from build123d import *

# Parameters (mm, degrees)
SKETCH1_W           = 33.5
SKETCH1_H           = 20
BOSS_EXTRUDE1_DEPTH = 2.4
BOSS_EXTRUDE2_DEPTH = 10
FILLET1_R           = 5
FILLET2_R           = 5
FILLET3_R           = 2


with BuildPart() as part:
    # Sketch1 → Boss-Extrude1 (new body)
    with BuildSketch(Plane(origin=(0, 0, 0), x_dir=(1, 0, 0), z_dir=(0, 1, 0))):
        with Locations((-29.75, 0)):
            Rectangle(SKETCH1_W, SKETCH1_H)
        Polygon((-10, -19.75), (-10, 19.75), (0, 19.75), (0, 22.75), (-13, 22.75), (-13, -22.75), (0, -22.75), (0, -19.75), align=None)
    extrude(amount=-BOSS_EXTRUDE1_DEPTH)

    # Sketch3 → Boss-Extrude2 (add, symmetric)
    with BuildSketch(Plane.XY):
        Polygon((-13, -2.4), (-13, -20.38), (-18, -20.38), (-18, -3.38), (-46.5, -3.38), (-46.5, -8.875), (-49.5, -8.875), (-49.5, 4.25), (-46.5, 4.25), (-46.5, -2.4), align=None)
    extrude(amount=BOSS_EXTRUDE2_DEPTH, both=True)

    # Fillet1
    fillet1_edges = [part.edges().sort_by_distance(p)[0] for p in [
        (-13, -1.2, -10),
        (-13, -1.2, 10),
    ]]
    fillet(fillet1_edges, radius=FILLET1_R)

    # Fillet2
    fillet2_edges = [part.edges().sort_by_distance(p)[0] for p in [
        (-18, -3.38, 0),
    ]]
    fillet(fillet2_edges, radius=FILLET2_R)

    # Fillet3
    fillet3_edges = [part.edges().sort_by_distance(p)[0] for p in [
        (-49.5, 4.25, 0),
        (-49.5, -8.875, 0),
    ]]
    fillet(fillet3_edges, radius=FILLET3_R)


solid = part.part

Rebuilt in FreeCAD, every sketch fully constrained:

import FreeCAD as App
import Part
import Sketcher

V = App.Vector


def edges_at(feature, points):
    """Names of the edges that pass closest to the given points."""
    edges = feature.Shape.Edges
    near = lambda p: min(range(len(edges)), key=lambda i: edges[i].distToShape(Part.Vertex(*p))[0])
    return sorted({f"Edge{near(p) + 1}" for p in points})

doc = App.newDocument("Part")
params = doc.addObject("Spreadsheet::Sheet", "Params")
for row, (alias, value) in enumerate([
    ("sketch1_width", "13 mm"),
    ("sketch1_width2", "10 mm"),
    ("sketch1_height", "20 mm"),
    ("sketch1_height2", "3 mm"),
    ("sketch1_width3", "33.5 mm"),
    ("pad1_length", "2.4 mm"),
    ("sketch2_width", "3 mm"),
    ("sketch2_width2", "5 mm"),
    ("sketch2_height", "17 mm"),
    ("sketch2_width3", "33.5 mm"),
    ("sketch2_height2", "17.98 mm"),
    ("pad2_length", "20 mm"),
    ("fillet_radius", "5 mm"),
    ("fillet2_radius", "5 mm"),
    ("fillet3_radius", "2 mm"),
], start=1):
    params.set(f"A{row}", alias)
    params.set(f"B{row}", "=" + value)
    params.setAlias(f"B{row}", alias)

body = doc.addObject("PartDesign::Body", "Body")

# Sketch on XZ plane
sketch1 = body.newObject("Sketcher::SketchObject", "Sketch")
sketch1.AttachmentSupport = (doc.getObject("XZ_Plane"), [""])
sketch1.MapMode = "FlatFace"
sketch1.addGeometry(Part.LineSegment(V(-46.5, -10, 0), V(-46.5, 10, 0)), False)
sketch1.addGeometry(Part.LineSegment(V(-46.5, 10, 0), V(-13, 10, 0)), False)
sketch1.addGeometry(Part.LineSegment(V(-13, 10, 0), V(-13, 22.8, 0)), False)
sketch1.addGeometry(Part.LineSegment(V(-13, 22.8, 0), V(0, 22.8, 0)), False)
sketch1.addGeometry(Part.LineSegment(V(0, 22.8, 0), V(0, 19.8, 0)), False)
sketch1.addGeometry(Part.LineSegment(V(0, 19.8, 0), V(-10, 19.8, 0)), False)
sketch1.addGeometry(Part.LineSegment(V(-10, 19.8, 0), V(-10, -19.8, 0)), False)
sketch1.addGeometry(Part.LineSegment(V(-10, -19.8, 0), V(0, -19.8, 0)), False)
sketch1.addGeometry(Part.LineSegment(V(0, -19.8, 0), V(0, -22.8, 0)), False)
sketch1.addGeometry(Part.LineSegment(V(0, -22.8, 0), V(-13, -22.8, 0)), False)
sketch1.addGeometry(Part.LineSegment(V(-13, -22.8, 0), V(-13, -10, 0)), False)
sketch1.addGeometry(Part.LineSegment(V(-13, -10, 0), V(-46.5, -10, 0)), False)
sketch1.addConstraint(Sketcher.Constraint("Coincident", 0, 2, 1, 1))
sketch1.addConstraint(Sketcher.Constraint("Coincident", 1, 2, 2, 1))
sketch1.addConstraint(Sketcher.Constraint("Coincident", 2, 2, 3, 1))
sketch1.addConstraint(Sketcher.Constraint("Coincident", 3, 2, 4, 1))
sketch1.addConstraint(Sketcher.Constraint("Coincident", 4, 2, 5, 1))
sketch1.addConstraint(Sketcher.Constraint("Coincident", 5, 2, 6, 1))
sketch1.addConstraint(Sketcher.Constraint("Coincident", 6, 2, 7, 1))
sketch1.addConstraint(Sketcher.Constraint("Coincident", 7, 2, 8, 1))
sketch1.addConstraint(Sketcher.Constraint("Coincident", 8, 2, 9, 1))
sketch1.addConstraint(Sketcher.Constraint("Coincident", 9, 2, 10, 1))
sketch1.addConstraint(Sketcher.Constraint("Coincident", 10, 2, 11, 1))
sketch1.addConstraint(Sketcher.Constraint("Coincident", 11, 2, 0, 1))
sketch1.addConstraint(Sketcher.Constraint("Vertical", 0))
sketch1.addConstraint(Sketcher.Constraint("Horizontal", 1))
sketch1.addConstraint(Sketcher.Constraint("Vertical", 2))
sketch1.addConstraint(Sketcher.Constraint("Horizontal", 3))
sketch1.addConstraint(Sketcher.Constraint("Vertical", 4))
sketch1.addConstraint(Sketcher.Constraint("Horizontal", 5))
sketch1.addConstraint(Sketcher.Constraint("Vertical", 6))
sketch1.addConstraint(Sketcher.Constraint("Horizontal", 7))
sketch1.addConstraint(Sketcher.Constraint("Vertical", 8))
sketch1.addConstraint(Sketcher.Constraint("Horizontal", 9))
sketch1.addConstraint(Sketcher.Constraint("Vertical", 10))
sketch1.addConstraint(Sketcher.Constraint("Horizontal", 11))
sketch1.addConstraint(Sketcher.Constraint("Symmetric", 4, 2, 7, 2, -1, 1))
sketch1.addConstraint(Sketcher.Constraint("Symmetric", 3, 2, 8, 2, -1))
sketch1.addConstraint(Sketcher.Constraint("Symmetric", 1, 2, 10, 2, -1))
sketch1.addConstraint(Sketcher.Constraint("DistanceX", 3, 1, 3, 2, 13.0))
sketch1.addConstraint(Sketcher.Constraint("DistanceX", 5, 2, 5, 1, 10.0))
sketch1.addConstraint(Sketcher.Constraint("DistanceY", 0, 1, 0, 2, 20.0))
sketch1.addConstraint(Sketcher.Constraint("DistanceY", 4, 2, 4, 1, 3.0))
sketch1.addConstraint(Sketcher.Constraint("DistanceX", 1, 1, 1, 2, 33.5))
sketch1.addConstraint(Sketcher.Constraint("DistanceY", 6, 2, 6, 1, 39.5))
sketch1.setExpression("Constraints[27]", "Params.sketch1_width")
sketch1.setExpression("Constraints[28]", "Params.sketch1_width2")
sketch1.setExpression("Constraints[29]", "Params.sketch1_height")
sketch1.setExpression("Constraints[30]", "Params.sketch1_height2")
sketch1.setExpression("Constraints[31]", "Params.sketch1_width3")
pad1 = body.newObject("PartDesign::Pad", "Pad")
pad1.Profile = sketch1
pad1.setExpression("Length", "Params.pad1_length")

# Sketch on XY plane
sketch2 = body.newObject("Sketcher::SketchObject", "Sketch001")
sketch2.AttachmentSupport = (doc.getObject("XY_Plane"), [""])
sketch2.MapMode = "FlatFace"
sketch2.addGeometry(Part.LineSegment(V(-13, -20.4, 0), V(-13, -2.4, 0)), False)
sketch2.addGeometry(Part.LineSegment(V(-13, -2.4, 0), V(-46.5, -2.4, 0)), False)
sketch2.addGeometry(Part.LineSegment(V(-46.5, -2.4, 0), V(-46.5, 4.2, 0)), False)
sketch2.addGeometry(Part.LineSegment(V(-46.5, 4.2, 0), V(-49.5, 4.2, 0)), False)
sketch2.addGeometry(Part.LineSegment(V(-49.5, 4.2, 0), V(-49.5, -8.9, 0)), False)
sketch2.addGeometry(Part.LineSegment(V(-49.5, -8.9, 0), V(-46.5, -8.9, 0)), False)
sketch2.addGeometry(Part.LineSegment(V(-46.5, -8.9, 0), V(-46.5, -3.4, 0)), False)
sketch2.addGeometry(Part.LineSegment(V(-46.5, -3.4, 0), V(-18, -3.4, 0)), False)
sketch2.addGeometry(Part.LineSegment(V(-18, -3.4, 0), V(-18, -20.4, 0)), False)
sketch2.addGeometry(Part.LineSegment(V(-18, -20.4, 0), V(-13, -20.4, 0)), False)
sketch2.addConstraint(Sketcher.Constraint("Coincident", 0, 2, 1, 1))
sketch2.addConstraint(Sketcher.Constraint("Coincident", 1, 2, 2, 1))
sketch2.addConstraint(Sketcher.Constraint("Coincident", 2, 2, 3, 1))
sketch2.addConstraint(Sketcher.Constraint("Coincident", 3, 2, 4, 1))
sketch2.addConstraint(Sketcher.Constraint("Coincident", 4, 2, 5, 1))
sketch2.addConstraint(Sketcher.Constraint("Coincident", 5, 2, 6, 1))
sketch2.addConstraint(Sketcher.Constraint("Coincident", 6, 2, 7, 1))
sketch2.addConstraint(Sketcher.Constraint("Coincident", 7, 2, 8, 1))
sketch2.addConstraint(Sketcher.Constraint("Coincident", 8, 2, 9, 1))
sketch2.addConstraint(Sketcher.Constraint("Coincident", 9, 2, 0, 1))
sketch2.addConstraint(Sketcher.Constraint("Vertical", 0))
sketch2.addConstraint(Sketcher.Constraint("Horizontal", 1))
sketch2.addConstraint(Sketcher.Constraint("Vertical", 2))
sketch2.addConstraint(Sketcher.Constraint("Horizontal", 3))
sketch2.addConstraint(Sketcher.Constraint("Vertical", 4))
sketch2.addConstraint(Sketcher.Constraint("Horizontal", 5))
sketch2.addConstraint(Sketcher.Constraint("Vertical", 6))
sketch2.addConstraint(Sketcher.Constraint("Horizontal", 7))
sketch2.addConstraint(Sketcher.Constraint("Vertical", 8))
sketch2.addConstraint(Sketcher.Constraint("Horizontal", 9))
sketch2.addConstraint(Sketcher.Constraint("Vertical", 2, 2, 5, 2))
sketch2.addConstraint(Sketcher.Constraint("DistanceX", 3, 2, 3, 1, 3.0))
sketch2.addConstraint(Sketcher.Constraint("DistanceX", 9, 1, 9, 2, 5.0))
sketch2.addConstraint(Sketcher.Constraint("DistanceY", 8, 2, 8, 1, 17.0))
sketch2.addConstraint(Sketcher.Constraint("DistanceX", 1, 2, 1, 1, 33.5))
sketch2.addConstraint(Sketcher.Constraint("DistanceX", 0, 2, -1, 1, 13.0))
sketch2.addConstraint(Sketcher.Constraint("DistanceY", 0, 1, 0, 2, 17.98))
sketch2.addConstraint(Sketcher.Constraint("DistanceY", 2, 1, 2, 2, 6.65))
sketch2.addConstraint(Sketcher.Constraint("DistanceY", 0, 2, -1, 1, 2.4))
sketch2.addConstraint(Sketcher.Constraint("DistanceY", 4, 2, 4, 1, 13.125))
sketch2.setExpression("Constraints[21]", "Params.sketch2_width")
sketch2.setExpression("Constraints[22]", "Params.sketch2_width2")
sketch2.setExpression("Constraints[23]", "Params.sketch2_height")
sketch2.setExpression("Constraints[24]", "Params.sketch2_width3")
sketch2.setExpression("Constraints[26]", "Params.sketch2_height2")
pad2 = body.newObject("PartDesign::Pad", "Pad001")
pad2.Profile = sketch2
pad2.setExpression("Length", "Params.pad2_length")
pad2.Midplane = True
doc.recompute()

fillet = body.newObject("PartDesign::Fillet", "Fillet")
fillet.Base = (pad2, edges_at(pad2, [(-13, -1.2, -10), (-13, -1.2, 10)]))
fillet.setExpression("Radius", "Params.fillet_radius")
doc.recompute()

fillet2 = body.newObject("PartDesign::Fillet", "Fillet001")
fillet2.Base = (fillet, edges_at(fillet, [(-18, -3.38, 0)]))
fillet2.setExpression("Radius", "Params.fillet2_radius")
doc.recompute()

fillet3 = body.newObject("PartDesign::Fillet", "Fillet002")
fillet3.Base = (fillet2, edges_at(fillet2, [(-49.5, 4.25, 0), (-49.5, -8.875, 0)]))
fillet3.setExpression("Radius", "Params.fillet3_radius")

doc.recompute()
